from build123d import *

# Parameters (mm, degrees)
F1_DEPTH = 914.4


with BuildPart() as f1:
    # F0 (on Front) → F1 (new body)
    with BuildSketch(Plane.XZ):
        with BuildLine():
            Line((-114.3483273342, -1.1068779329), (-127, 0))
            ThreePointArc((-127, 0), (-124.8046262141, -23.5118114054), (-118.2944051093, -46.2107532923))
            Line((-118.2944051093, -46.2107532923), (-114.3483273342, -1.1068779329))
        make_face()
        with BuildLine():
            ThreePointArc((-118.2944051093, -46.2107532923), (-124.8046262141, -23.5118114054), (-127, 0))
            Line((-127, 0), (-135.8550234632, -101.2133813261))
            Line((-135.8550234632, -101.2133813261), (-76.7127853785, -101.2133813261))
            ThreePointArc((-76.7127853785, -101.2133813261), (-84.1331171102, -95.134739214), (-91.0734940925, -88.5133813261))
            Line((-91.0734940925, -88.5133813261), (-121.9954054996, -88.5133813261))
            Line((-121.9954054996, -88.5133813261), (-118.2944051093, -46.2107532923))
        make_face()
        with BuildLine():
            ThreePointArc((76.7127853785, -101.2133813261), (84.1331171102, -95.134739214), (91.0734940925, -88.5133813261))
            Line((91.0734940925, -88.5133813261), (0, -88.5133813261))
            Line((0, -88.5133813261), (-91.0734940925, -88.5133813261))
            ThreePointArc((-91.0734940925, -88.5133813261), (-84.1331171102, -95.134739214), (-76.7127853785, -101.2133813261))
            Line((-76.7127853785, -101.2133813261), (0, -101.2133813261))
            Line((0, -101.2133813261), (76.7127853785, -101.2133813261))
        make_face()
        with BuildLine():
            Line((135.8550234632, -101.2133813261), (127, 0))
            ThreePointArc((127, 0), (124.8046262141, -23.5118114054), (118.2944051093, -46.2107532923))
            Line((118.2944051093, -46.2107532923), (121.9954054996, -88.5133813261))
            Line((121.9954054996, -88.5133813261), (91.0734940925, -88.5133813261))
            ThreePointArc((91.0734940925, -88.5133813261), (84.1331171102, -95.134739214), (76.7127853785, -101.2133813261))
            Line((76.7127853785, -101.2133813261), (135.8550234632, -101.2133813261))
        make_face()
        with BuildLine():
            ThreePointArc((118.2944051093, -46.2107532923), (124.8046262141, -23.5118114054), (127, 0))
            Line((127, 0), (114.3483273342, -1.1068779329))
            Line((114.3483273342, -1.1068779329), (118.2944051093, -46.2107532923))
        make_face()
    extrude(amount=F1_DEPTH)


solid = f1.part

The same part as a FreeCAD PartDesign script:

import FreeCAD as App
import Part
import Sketcher
Q = App.Units.Quantity


def add_polygon(sketch, points):
    """Adds a closed chain of lines whose ends are joined by coincident constraints."""
    first, n = sketch.GeometryCount, len(points)
    for a, b in zip(points, points[1:] + points[:1]):
        sketch.addGeometry(Part.LineSegment(App.Vector(*a, 0), App.Vector(*b, 0)), False)
    for i in range(n):
        sketch.addConstraint(Sketcher.Constraint("Coincident", first + i, 2, first + (i + 1) % n, 1))

doc = App.newDocument("Part")
body = doc.addObject("PartDesign::Body", "Body")

# Sketch on XZ plane
sketch1 = doc.addObject("Sketcher::SketchObject", "Sketch")
body.addObject(sketch1)
sketch1.AttachmentSupport = (doc.XZ_Plane, [""])
sketch1.MapMode = "FlatFace"
add_polygon(sketch1, [(-114.348327, -1.106878), (-127, 0), (-135.855023, -101.213381), (135.855023, -101.213381), (127, 0), (114.348327, -1.106878), (118.294405, -46.210753), (121.995406, -88.513381), (-121.995406, -88.513381), (-118.294405, -46.210753)])  # lines 0-9
sketch1.addConstraint([
    Sketcher.Constraint("Horizontal", 2),
    Sketcher.Constraint("Horizontal", 7),
    Sketcher.Constraint("Symmetric", 0, 2, 3, 2, -1, 1),
    Sketcher.Constraint("Symmetric", 5, 2, 8, 2, -2),
    Sketcher.Constraint("Symmetric", 4, 2, 9, 2, -2),
    Sketcher.Constraint("PointOnObject", 0, 2, -1),
    Sketcher.Constraint("Perpendicular", 0, 1),
    Sketcher.Constraint("Perpendicular", 3, 4),
    Sketcher.Constraint("Perpendicular", 4, 5),
    Sketcher.Constraint("Parallel", 5, 6),
    Sketcher.Constraint("Parallel", 1, 8),
    Sketcher.Constraint("Distance", 1, Q("4 in")),
    Sketcher.Constraint("DistanceX", 0, 2, -1, 1, Q("5 in")),
    Sketcher.Constraint("Angle", 0, Q("175 deg")),
    Sketcher.Constraint("Distance", 0, Q("0.5 in")),
    Sketcher.Constraint("DistanceY", 2, 2, 6, 2, Q("0.5 in")),
    Sketcher.Constraint("DistanceX", 5, 2, 6, 2, Q("3.701 mm")),
])
pad1 = doc.addObject("PartDesign::Pad", "Pad")
body.addObject(pad1)
pad1.Profile = sketch1
pad1.Length = Q("36 in")

doc.recompute()
